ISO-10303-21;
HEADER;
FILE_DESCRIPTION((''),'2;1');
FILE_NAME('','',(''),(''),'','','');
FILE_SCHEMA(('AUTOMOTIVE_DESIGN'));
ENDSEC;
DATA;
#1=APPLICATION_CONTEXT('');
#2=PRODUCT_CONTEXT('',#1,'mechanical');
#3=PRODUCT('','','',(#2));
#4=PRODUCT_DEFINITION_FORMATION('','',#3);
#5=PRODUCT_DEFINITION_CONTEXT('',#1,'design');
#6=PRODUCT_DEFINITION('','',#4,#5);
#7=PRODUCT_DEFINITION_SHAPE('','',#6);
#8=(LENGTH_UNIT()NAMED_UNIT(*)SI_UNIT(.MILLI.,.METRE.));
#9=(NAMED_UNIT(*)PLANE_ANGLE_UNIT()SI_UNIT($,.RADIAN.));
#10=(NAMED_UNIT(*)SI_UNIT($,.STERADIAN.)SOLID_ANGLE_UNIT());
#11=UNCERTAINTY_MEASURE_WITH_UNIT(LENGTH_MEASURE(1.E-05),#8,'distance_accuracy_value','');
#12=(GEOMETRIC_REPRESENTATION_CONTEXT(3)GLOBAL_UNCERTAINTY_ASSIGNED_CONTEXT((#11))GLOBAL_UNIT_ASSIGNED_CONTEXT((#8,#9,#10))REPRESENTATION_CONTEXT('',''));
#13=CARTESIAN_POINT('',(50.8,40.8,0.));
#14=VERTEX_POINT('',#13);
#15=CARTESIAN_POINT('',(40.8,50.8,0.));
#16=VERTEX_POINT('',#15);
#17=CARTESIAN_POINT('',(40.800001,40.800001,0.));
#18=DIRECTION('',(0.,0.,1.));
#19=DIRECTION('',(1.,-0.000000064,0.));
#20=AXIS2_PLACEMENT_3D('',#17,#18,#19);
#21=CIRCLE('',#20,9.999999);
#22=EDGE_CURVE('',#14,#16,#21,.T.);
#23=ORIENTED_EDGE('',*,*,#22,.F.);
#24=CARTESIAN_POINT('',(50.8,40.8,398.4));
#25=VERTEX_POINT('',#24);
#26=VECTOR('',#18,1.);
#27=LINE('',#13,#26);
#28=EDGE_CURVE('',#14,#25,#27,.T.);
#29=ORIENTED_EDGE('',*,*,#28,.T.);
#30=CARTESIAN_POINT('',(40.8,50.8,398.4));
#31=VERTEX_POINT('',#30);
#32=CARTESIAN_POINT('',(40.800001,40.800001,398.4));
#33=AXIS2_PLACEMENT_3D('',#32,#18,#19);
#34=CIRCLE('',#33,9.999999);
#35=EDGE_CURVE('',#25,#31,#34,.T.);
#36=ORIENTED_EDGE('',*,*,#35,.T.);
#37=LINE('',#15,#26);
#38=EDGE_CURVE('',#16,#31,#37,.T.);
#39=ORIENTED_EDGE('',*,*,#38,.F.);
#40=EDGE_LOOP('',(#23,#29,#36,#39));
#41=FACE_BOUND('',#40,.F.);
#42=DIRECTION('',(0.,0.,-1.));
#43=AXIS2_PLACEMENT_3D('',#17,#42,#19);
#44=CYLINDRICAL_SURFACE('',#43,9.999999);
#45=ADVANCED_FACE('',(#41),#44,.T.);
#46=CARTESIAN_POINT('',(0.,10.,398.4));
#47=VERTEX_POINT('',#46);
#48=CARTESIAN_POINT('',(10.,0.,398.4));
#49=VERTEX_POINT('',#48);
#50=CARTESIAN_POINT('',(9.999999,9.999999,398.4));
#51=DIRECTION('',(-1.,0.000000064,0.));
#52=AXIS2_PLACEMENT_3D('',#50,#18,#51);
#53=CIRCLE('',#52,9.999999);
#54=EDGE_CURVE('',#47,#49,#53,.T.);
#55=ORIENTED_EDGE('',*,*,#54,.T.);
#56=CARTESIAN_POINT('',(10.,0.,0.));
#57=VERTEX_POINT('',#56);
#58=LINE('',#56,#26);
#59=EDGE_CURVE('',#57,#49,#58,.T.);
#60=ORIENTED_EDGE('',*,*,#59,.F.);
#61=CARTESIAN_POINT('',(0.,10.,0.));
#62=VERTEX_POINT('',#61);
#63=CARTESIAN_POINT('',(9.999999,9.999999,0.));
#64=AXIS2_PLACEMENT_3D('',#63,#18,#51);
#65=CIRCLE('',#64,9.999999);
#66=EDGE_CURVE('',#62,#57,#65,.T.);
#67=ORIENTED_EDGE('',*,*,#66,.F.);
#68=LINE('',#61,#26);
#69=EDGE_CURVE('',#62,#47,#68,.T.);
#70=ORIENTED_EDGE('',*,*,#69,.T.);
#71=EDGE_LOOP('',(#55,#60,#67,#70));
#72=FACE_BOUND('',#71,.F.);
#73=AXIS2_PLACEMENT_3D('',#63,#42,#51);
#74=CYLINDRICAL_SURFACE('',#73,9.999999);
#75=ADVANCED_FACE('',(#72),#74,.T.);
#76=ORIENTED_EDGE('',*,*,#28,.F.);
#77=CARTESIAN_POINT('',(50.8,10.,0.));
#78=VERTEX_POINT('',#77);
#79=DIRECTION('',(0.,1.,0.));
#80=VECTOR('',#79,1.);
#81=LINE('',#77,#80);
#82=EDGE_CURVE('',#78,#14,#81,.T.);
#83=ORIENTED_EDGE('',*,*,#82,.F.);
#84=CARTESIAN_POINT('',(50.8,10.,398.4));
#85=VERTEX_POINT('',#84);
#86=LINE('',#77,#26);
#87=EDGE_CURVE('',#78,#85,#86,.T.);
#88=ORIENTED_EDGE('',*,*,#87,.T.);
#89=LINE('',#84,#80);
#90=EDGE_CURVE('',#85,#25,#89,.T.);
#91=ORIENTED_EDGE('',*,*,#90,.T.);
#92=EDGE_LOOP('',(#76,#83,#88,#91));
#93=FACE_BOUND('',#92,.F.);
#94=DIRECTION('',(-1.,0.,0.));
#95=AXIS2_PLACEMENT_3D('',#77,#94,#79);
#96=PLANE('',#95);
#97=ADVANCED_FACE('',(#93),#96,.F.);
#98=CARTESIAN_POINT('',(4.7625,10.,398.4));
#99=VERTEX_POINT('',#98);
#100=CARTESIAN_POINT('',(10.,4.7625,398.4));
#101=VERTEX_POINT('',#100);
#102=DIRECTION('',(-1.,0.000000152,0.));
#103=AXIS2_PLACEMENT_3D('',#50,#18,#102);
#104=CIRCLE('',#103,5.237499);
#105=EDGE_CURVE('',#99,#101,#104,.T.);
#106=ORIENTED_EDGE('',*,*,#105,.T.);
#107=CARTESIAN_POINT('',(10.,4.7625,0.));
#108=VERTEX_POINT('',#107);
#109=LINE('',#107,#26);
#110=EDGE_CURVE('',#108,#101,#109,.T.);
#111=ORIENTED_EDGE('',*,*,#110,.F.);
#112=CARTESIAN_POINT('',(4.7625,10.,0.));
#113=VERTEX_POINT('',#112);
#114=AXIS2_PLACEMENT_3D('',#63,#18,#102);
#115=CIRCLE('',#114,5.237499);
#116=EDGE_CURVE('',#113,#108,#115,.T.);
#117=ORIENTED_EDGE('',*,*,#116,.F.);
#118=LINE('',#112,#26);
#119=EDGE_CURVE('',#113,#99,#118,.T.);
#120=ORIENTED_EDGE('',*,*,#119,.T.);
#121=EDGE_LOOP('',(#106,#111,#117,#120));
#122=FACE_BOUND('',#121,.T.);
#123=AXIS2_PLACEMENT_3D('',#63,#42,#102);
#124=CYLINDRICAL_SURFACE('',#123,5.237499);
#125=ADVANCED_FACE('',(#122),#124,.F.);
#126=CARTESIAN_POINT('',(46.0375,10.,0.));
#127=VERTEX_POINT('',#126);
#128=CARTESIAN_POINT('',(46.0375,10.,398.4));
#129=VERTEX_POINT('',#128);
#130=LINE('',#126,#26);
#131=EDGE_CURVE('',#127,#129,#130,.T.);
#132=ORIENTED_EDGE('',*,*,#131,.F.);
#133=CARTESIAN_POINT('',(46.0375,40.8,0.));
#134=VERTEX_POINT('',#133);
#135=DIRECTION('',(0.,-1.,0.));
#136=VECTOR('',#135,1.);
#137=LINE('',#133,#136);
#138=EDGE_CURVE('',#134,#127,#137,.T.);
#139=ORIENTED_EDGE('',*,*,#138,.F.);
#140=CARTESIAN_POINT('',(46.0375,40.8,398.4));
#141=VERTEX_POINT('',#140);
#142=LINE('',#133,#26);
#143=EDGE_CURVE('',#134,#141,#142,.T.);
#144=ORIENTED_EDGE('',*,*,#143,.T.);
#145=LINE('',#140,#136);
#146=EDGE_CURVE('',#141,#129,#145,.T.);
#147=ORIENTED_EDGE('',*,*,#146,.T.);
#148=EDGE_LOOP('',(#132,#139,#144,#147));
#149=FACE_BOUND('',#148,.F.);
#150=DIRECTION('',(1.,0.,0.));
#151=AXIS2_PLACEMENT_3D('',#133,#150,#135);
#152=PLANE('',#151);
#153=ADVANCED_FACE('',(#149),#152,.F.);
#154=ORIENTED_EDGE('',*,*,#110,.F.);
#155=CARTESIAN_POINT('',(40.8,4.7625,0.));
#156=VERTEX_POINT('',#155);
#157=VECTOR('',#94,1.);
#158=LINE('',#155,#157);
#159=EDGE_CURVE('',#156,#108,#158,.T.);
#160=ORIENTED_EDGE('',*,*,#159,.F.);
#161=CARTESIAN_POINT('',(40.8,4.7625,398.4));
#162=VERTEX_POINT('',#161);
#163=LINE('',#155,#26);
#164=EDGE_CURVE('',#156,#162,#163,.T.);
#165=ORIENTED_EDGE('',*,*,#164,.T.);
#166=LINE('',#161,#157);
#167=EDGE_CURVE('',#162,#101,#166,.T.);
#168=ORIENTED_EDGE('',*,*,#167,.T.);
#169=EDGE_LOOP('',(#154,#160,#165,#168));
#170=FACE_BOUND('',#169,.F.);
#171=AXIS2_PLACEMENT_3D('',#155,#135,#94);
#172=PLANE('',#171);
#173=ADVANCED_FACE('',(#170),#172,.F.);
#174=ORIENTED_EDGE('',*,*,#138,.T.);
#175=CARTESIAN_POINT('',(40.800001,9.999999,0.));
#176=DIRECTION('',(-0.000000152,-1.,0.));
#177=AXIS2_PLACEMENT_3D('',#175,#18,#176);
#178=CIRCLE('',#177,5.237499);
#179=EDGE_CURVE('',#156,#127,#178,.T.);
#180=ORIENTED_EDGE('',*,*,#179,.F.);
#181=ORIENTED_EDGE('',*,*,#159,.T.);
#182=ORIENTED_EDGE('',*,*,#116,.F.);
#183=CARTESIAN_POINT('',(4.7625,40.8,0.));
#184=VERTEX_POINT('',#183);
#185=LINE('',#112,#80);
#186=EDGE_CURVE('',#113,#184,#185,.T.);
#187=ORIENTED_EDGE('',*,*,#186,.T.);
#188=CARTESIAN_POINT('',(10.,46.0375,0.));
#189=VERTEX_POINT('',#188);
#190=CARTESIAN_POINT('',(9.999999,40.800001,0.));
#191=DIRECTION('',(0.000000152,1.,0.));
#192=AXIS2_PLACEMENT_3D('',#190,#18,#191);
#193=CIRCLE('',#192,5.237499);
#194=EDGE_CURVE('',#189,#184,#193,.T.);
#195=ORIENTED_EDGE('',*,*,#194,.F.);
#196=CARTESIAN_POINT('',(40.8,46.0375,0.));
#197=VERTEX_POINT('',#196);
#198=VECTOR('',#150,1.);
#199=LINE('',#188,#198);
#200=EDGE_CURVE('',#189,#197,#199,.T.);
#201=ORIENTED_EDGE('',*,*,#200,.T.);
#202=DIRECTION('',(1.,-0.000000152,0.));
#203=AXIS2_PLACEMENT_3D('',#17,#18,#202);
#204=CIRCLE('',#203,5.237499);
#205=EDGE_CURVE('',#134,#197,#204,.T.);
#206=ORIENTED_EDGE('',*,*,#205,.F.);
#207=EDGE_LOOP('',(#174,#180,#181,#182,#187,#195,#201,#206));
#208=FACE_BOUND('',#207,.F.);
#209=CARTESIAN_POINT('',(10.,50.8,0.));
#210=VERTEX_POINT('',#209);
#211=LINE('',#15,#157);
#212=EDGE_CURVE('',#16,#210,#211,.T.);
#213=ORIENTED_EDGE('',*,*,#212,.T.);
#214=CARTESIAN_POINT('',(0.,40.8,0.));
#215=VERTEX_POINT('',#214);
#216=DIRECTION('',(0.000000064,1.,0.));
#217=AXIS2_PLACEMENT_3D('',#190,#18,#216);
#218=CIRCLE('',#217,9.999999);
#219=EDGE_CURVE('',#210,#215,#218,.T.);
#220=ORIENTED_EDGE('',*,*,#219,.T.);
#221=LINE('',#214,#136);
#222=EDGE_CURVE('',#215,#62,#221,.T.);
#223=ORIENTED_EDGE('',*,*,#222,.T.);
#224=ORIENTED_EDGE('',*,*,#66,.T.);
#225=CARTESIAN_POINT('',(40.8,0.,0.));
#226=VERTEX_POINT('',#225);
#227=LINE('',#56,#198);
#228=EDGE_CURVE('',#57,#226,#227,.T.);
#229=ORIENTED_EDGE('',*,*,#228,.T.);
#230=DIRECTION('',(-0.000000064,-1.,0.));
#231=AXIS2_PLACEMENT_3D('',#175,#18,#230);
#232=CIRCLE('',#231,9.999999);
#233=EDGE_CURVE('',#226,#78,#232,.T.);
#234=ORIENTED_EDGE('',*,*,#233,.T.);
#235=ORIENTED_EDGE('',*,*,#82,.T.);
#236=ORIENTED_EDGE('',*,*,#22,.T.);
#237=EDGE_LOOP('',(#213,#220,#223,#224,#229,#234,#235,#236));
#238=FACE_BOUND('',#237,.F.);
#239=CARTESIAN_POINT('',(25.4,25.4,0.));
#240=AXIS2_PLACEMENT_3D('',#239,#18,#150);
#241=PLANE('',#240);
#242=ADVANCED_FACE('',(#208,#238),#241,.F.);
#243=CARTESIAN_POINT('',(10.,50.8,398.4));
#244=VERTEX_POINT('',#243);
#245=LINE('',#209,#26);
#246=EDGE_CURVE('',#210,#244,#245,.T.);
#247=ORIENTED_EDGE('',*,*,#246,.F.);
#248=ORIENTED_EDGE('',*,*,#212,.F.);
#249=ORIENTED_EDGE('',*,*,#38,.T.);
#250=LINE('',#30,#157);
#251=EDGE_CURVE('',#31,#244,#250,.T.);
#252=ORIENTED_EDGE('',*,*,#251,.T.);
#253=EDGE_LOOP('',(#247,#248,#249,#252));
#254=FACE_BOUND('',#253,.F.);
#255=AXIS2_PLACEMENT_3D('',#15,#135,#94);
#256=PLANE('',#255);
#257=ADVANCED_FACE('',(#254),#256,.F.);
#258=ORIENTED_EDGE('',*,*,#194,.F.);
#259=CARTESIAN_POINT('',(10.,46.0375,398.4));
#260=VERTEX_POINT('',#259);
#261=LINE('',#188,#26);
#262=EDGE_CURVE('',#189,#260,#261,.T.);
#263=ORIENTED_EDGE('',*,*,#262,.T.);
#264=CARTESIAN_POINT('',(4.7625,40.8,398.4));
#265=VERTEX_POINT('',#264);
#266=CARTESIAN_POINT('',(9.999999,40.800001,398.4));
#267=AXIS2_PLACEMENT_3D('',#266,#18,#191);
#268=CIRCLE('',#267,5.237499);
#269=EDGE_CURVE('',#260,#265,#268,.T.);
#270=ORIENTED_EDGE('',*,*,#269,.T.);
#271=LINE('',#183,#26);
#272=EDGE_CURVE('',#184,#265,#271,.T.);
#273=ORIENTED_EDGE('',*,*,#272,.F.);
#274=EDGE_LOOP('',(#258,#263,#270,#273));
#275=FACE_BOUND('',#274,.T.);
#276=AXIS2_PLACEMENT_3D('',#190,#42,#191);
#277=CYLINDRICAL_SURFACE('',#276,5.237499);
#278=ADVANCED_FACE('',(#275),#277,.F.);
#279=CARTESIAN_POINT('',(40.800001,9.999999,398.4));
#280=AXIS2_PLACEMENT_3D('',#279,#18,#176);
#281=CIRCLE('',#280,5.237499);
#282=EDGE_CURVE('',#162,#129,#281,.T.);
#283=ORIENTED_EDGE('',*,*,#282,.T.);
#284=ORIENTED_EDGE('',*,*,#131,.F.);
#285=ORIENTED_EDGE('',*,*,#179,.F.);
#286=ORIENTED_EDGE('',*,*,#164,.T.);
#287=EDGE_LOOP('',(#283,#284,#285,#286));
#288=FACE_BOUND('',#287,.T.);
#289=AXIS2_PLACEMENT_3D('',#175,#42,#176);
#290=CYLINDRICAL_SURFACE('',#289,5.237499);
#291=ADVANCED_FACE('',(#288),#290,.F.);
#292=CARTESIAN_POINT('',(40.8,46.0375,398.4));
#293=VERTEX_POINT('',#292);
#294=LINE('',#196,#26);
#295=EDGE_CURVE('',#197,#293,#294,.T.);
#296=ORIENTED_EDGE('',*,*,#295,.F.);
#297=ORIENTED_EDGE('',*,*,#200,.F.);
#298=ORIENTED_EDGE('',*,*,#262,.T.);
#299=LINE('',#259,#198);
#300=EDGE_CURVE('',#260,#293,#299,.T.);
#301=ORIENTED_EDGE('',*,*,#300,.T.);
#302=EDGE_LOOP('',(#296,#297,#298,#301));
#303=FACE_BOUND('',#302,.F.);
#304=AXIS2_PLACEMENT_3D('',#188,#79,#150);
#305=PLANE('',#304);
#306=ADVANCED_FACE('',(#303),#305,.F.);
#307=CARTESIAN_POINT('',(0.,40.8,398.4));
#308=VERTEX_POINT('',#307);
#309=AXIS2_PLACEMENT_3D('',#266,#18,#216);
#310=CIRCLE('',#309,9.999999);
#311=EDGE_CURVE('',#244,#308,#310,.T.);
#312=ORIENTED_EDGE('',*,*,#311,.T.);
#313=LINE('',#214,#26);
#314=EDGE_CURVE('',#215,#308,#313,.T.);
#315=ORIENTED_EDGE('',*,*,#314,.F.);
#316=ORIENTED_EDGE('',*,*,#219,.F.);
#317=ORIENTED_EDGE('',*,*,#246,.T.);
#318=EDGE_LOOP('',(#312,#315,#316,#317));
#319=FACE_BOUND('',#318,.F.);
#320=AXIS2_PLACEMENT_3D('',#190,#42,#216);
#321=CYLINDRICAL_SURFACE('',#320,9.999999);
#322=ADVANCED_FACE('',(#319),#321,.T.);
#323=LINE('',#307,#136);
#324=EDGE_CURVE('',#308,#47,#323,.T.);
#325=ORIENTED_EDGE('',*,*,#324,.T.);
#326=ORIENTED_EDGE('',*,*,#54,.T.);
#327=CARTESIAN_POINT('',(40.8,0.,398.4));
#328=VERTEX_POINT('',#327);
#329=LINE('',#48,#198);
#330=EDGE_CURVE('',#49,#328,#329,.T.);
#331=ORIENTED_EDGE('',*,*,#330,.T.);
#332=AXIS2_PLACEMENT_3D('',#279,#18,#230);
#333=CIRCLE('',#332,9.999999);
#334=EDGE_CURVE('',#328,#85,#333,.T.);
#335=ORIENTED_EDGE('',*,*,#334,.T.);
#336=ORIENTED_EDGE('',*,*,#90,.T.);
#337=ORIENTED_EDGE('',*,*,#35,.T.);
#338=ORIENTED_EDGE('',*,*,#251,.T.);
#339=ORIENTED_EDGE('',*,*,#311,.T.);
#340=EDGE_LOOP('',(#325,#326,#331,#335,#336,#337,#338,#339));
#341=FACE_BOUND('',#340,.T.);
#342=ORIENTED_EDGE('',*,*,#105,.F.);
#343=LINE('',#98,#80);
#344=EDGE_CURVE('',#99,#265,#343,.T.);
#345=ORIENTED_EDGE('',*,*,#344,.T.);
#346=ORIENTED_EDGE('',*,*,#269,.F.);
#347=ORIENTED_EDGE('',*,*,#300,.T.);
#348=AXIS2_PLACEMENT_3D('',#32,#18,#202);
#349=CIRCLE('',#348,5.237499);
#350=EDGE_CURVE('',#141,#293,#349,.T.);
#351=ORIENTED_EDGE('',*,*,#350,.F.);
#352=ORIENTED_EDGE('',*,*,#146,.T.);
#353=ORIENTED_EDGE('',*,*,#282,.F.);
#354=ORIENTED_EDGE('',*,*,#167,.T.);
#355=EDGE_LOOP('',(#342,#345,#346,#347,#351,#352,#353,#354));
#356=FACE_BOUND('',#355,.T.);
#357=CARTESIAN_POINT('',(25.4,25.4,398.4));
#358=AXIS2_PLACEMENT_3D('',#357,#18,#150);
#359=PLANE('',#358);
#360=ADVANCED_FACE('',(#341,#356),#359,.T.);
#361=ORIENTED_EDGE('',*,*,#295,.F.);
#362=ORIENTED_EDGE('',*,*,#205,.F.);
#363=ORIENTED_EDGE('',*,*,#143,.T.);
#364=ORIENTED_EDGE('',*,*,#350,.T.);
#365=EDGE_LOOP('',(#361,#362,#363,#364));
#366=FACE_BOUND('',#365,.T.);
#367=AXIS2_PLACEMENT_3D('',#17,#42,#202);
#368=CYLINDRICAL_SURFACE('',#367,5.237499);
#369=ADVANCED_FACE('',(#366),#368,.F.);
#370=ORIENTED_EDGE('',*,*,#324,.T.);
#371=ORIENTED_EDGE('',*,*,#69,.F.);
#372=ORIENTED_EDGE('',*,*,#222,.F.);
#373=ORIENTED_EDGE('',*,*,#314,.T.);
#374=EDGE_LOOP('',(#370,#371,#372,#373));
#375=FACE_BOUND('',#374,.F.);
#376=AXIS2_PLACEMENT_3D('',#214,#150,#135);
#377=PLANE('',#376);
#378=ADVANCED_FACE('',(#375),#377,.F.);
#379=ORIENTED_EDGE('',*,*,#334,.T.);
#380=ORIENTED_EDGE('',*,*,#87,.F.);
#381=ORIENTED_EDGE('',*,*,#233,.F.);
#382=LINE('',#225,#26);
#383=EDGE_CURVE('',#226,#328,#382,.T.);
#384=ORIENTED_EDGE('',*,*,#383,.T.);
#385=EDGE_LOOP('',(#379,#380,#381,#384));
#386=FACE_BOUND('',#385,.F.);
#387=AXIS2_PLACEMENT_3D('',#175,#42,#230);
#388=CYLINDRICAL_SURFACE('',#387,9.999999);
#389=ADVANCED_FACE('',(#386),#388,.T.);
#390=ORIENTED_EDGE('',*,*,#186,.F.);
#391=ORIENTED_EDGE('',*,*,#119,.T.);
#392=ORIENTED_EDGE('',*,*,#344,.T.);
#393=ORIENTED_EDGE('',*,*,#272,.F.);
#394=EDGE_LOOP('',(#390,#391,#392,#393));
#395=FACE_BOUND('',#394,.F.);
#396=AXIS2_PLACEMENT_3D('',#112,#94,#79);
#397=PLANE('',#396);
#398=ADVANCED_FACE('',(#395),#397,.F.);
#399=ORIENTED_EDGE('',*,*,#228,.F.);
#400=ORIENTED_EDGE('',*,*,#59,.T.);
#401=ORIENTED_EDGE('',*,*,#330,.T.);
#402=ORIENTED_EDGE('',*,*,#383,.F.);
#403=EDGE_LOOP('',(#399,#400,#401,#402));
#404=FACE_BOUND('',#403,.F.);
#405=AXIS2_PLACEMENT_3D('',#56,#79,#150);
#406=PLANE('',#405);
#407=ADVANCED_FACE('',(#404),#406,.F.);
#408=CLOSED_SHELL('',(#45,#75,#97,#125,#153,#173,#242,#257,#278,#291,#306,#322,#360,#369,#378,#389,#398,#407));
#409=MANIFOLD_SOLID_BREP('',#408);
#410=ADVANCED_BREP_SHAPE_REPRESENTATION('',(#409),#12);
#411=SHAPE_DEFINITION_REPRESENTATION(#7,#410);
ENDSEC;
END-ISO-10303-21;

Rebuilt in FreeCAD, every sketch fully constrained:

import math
import FreeCAD as App
import Part
import Sketcher
from FreeCAD import Vector

doc = App.newDocument("Part")
body = doc.addObject("PartDesign::Body", "Body")

# Sketch on XY plane
sketch1 = body.newObject("Sketcher::SketchObject", "Sketch")
sketch1.AttachmentSupport = (doc.getObject("XY_Plane"), [""])
sketch1.MapMode = "FlatFace"
sketch1.addGeometry([
    Part.LineSegment(Vector(10, 0, 0), Vector(41, 0, 0)),  # 0
    Part.ArcOfCircle(Part.Circle(Vector(41, 10, 0), Vector(0, 0, 1), 10), math.radians(-90), math.radians(0)),  # 1
    Part.LineSegment(Vector(51, 10, 0), Vector(51, 41, 0)),  # 2
    Part.ArcOfCircle(Part.Circle(Vector(41, 41, 0), Vector(0, 0, 1), 10), math.radians(0), math.radians(90)),  # 3
    Part.LineSegment(Vector(41, 51, 0), Vector(10, 51, 0)),  # 4
    Part.ArcOfCircle(Part.Circle(Vector(10, 41, 0), Vector(0, 0, 1), 10), math.radians(90), math.radians(180)),  # 5
    Part.LineSegment(Vector(0, 41, 0), Vector(0, 10, 0)),  # 6
    Part.ArcOfCircle(Part.Circle(Vector(10, 10, 0), Vector(0, 0, 1), 10), math.radians(180), math.radians(270)),  # 7
    Part.ArcOfCircle(Part.Circle(Vector(10, 41, 0), Vector(0, 0, 1), 5), math.radians(90), math.radians(180)),  # 8
    Part.LineSegment(Vector(10, 46, 0), Vector(41, 46, 0)),  # 9
    Part.ArcOfCircle(Part.Circle(Vector(41, 41, 0), Vector(0, 0, 1), 5), math.radians(0), math.radians(90)),  # 10
    Part.LineSegment(Vector(46, 41, 0), Vector(46, 10, 0)),  # 11
    Part.ArcOfCircle(Part.Circle(Vector(41, 10, 0), Vector(0, 0, 1), 5), math.radians(-90), math.radians(0)),  # 12
    Part.LineSegment(Vector(41, 5, 0), Vector(10, 5, 0)),  # 13
    Part.ArcOfCircle(Part.Circle(Vector(10, 10, 0), Vector(0, 0, 1), 5), math.radians(180), math.radians(270)),  # 14
    Part.LineSegment(Vector(5, 10, 0), Vector(5, 41, 0)),  # 15
], False)
sketch1.addConstraint([
    Sketcher.Constraint("Tangent", 0, 2, 1, 1),
    Sketcher.Constraint("Tangent", 1, 2, 2, 1),
    Sketcher.Constraint("Tangent", 2, 2, 3, 1),
    Sketcher.Constraint("Tangent", 3, 2, 4, 1),
    Sketcher.Constraint("Tangent", 4, 2, 5, 1),
    Sketcher.Constraint("Tangent", 5, 2, 6, 1),
    Sketcher.Constraint("Tangent", 6, 2, 7, 1),
    Sketcher.Constraint("Tangent", 7, 2, 0, 1),
    Sketcher.Constraint("Tangent", 8, 1, 9, 1),
    Sketcher.Constraint("Tangent", 9, 2, 10, 2),
    Sketcher.Constraint("Tangent", 10, 1, 11, 1),
    Sketcher.Constraint("Tangent", 11, 2, 12, 2),
    Sketcher.Constraint("Tangent", 12, 1, 13, 1),
    Sketcher.Constraint("Tangent", 13, 2, 14, 2),
    Sketcher.Constraint("Tangent", 14, 1, 15, 1),
    Sketcher.Constraint("Tangent", 15, 2, 8, 2),
    Sketcher.Constraint("Horizontal", 0),
    Sketcher.Constraint("Vertical", 2),
    Sketcher.Constraint("Horizontal", 4),
    Sketcher.Constraint("Vertical", 6),
    Sketcher.Constraint("Horizontal", 9),
    Sketcher.Constraint("Vertical", 11),
    Sketcher.Constraint("Horizontal", 13),
    Sketcher.Constraint("Vertical", 15),
    Sketcher.Constraint("Coincident", 8, 3, 5, 3),
    Sketcher.Constraint("Coincident", 10, 3, 3, 3),
    Sketcher.Constraint("Coincident", 12, 3, 1, 3),
    Sketcher.Constraint("Equal", 1, 3),
    Sketcher.Constraint("Equal", 3, 5),
    Sketcher.Constraint("Equal", 5, 7),
    Sketcher.Constraint("Equal", 12, 14),
    Sketcher.Constraint("PointOnObject", 0, 2, -1),
    Sketcher.Constraint("PointOnObject", 5, 2, -2),
    Sketcher.Constraint("Equal", 13, 2),
    Sketcher.Constraint("Radius", 1, 9.999999),
    Sketcher.Constraint("DistanceX", 0, 1, 0, 2, 30.8),
    Sketcher.Constraint("Radius", 8, 5.237499),
])
pad1 = body.newObject("PartDesign::Pad", "Pad")
pad1.Profile = sketch1
pad1.Length = 398.4

doc.recompute()
